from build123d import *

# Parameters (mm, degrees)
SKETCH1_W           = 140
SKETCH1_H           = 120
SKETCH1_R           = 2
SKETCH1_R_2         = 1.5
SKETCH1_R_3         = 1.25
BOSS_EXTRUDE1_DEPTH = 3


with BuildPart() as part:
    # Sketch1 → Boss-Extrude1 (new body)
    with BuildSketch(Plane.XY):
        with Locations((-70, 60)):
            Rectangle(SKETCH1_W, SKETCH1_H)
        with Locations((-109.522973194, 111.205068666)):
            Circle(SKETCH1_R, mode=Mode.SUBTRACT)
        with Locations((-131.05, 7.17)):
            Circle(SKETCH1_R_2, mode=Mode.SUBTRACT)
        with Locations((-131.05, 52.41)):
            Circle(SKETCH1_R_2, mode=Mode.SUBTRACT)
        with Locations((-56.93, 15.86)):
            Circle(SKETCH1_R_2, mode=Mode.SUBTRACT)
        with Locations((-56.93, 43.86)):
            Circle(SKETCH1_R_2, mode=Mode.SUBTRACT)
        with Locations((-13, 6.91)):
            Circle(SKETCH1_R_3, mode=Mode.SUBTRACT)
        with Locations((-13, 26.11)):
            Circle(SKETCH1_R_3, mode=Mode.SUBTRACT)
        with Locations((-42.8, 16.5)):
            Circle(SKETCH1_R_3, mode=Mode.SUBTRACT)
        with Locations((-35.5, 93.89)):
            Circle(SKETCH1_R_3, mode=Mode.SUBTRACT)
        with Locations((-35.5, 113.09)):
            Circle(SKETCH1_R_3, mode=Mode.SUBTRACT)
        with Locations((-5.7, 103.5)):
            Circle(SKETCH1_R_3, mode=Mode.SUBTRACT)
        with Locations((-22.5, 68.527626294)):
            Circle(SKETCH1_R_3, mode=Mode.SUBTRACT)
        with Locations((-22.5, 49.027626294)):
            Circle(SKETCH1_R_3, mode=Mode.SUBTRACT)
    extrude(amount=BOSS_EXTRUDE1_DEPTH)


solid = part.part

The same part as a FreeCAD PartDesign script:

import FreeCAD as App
import Part
import Sketcher

V = App.Vector
Q = App.Units.Quantity


def add_polygon(sketch, points):
    """Adds a closed chain of lines whose ends are joined by coincident constraints."""
    first, n = sketch.GeometryCount, len(points)
    for a, b in zip(points, points[1:] + points[:1]):
        sketch.addGeometry(Part.LineSegment(App.Vector(*a, 0), App.Vector(*b, 0)), False)
    for i in range(n):
        sketch.addConstraint(Sketcher.Constraint("Coincident", first + i, 2, first + (i + 1) % n, 1))

doc = App.newDocument("Part")
body = doc.addObject("PartDesign::Body", "Body")

# Sketch on XY plane
sketch1 = body.newObject("Sketcher::SketchObject", "Sketch")
sketch1.AttachmentSupport = (doc.getObject("XY_Plane"), [""])
sketch1.MapMode = "FlatFace"
add_polygon(sketch1, [(-140, 120), (-140, 0), (0, 0), (0, 120)])  # lines 0-3
sketch1.addGeometry(Part.Circle(V(-131.1, 7.2, 0), V(0, 0, 1), 1.5), False)  # 4
sketch1.addGeometry(Part.Circle(V(-131.1, 52.4, 0), V(0, 0, 1), 1.5), False)  # 5
sketch1.addGeometry(Part.Circle(V(-56.9, 15.9, 0), V(0, 0, 1), 1.5), False)  # 6
sketch1.addGeometry(Part.Circle(V(-42.8, 16.5, 0), V(0, 0, 1), 1.2), False)  # 7
sketch1.addGeometry(Part.Circle(V(-13, 6.9, 0), V(0, 0, 1), 1.2), False)  # 8
sketch1.addGeometry(Part.Circle(V(-13, 26.1, 0), V(0, 0, 1), 1.2), False)  # 9
sketch1.addGeometry(Part.Circle(V(-56.9, 43.9, 0), V(0, 0, 1), 1.5), False)  # 10
sketch1.addGeometry(Part.Circle(V(-22.5, 49, 0), V(0, 0, 1), 1.2), False)  # 11
sketch1.addGeometry(Part.Circle(V(-109.5, 111.2, 0), V(0, 0, 1), 2), False)  # 12
sketch1.addGeometry(Part.Circle(V(-22.5, 68.5, 0), V(0, 0, 1), 1.2), False)  # 13
sketch1.addGeometry(Part.Circle(V(-35.5, 93.9, 0), V(0, 0, 1), 1.2), False)  # 14
sketch1.addGeometry(Part.Circle(V(-35.5, 113.1, 0), V(0, 0, 1), 1.2), False)  # 15
sketch1.addGeometry(Part.Circle(V(-5.7, 103.5, 0), V(0, 0, 1), 1.2), False)  # 16
sketch1.addConstraint([
    Sketcher.Constraint("Vertical", 0),
    Sketcher.Constraint("Horizontal", 1),
    Sketcher.Constraint("Vertical", 2),
    Sketcher.Constraint("Horizontal", 3),
    Sketcher.Constraint("Coincident", 1, 2, -1, 1),
    Sketcher.Constraint("Equal", 4, 5),
    Sketcher.Constraint("Equal", 5, 6),
    Sketcher.Constraint("Equal", 7, 8),
    Sketcher.Constraint("Equal", 8, 9),
    Sketcher.Constraint("Equal", 6, 10),
    Sketcher.Constraint("Equal", 9, 11),
    Sketcher.Constraint("Equal", 11, 13),
    Sketcher.Constraint("Equal", 13, 14),
    Sketcher.Constraint("Equal", 14, 15),
    Sketcher.Constraint("Equal", 15, 16),
    Sketcher.Constraint("Vertical", 4, 3, 5, 3),
    Sketcher.Constraint("Vertical", 8, 3, 9, 3),
    Sketcher.Constraint("Vertical", 6, 3, 10, 3),
    Sketcher.Constraint("Vertical", 11, 3, 13, 3),
    Sketcher.Constraint("Vertical", 14, 3, 15, 3),
    Sketcher.Constraint("Diameter", 4, Q("3 mm")),
    Sketcher.Constraint("Diameter", 12, Q("4 mm")),
    Sketcher.Constraint("Diameter", 7, Q("2.5 mm")),
    Sketcher.Constraint("DistanceX", 1, 1, 1, 2, Q("140 mm")),
    Sketcher.Constraint("DistanceY", 0, 2, 0, 1, Q("120 mm")),
    Sketcher.Constraint("DistanceX", 8, 3, -1, 1, Q("13 mm")),
    Sketcher.Constraint("DistanceY", 6, 3, 10, 3, Q("28 mm")),
    Sketcher.Constraint("DistanceX", 14, 3, 13, 3, Q("13 mm")),
    Sketcher.Constraint("DistanceX", 7, 3, -1, 1, Q("42.8 mm")),
    Sketcher.Constraint("DistanceY", -1, 1, 7, 3, Q("16.5 mm")),
    Sketcher.Constraint("DistanceX", 11, 3, -1, 1, Q("22.5 mm")),
    Sketcher.Constraint("DistanceX", 16, 3, -1, 1, Q("5.7 mm")),
    Sketcher.Constraint("DistanceY", -1, 1, 16, 3, Q("103.5 mm")),
    Sketcher.Constraint("DistanceY", 8, 3, 5, 3, Q("45.5 mm")),
    Sketcher.Constraint("DistanceY", 8, 3, 9, 3, Q("19.2 mm")),
    Sketcher.Constraint("DistanceY", 11, 3, 13, 3, Q("19.5 mm")),
    Sketcher.Constraint("DistanceY", 14, 3, 15, 3, Q("19.2 mm")),
    Sketcher.Constraint("DistanceX", 4, 3, -1, 1, Q("131.05 mm")),
    Sketcher.Constraint("DistanceY", -1, 1, 4, 3, Q("7.17 mm")),
    Sketcher.Constraint("DistanceY", -1, 1, 5, 3, Q("52.41 mm")),
    Sketcher.Constraint("DistanceX", 6, 3, -1, 1, Q("56.93 mm")),
    Sketcher.Constraint("DistanceY", -1, 1, 6, 3, Q("15.86 mm")),
    Sketcher.Constraint("DistanceY", -1, 1, 14, 3, Q("93.89 mm")),
    Sketcher.Constraint("DistanceY", -1, 1, 12, 3, Q("111.205069 mm")),
    Sketcher.Constraint("DistanceY", -1, 1, 11, 3, Q("49.027626 mm")),
    Sketcher.Constraint("DistanceX", 12, 3, -1, 1, Q("109.522973 mm")),
])
pad1 = body.newObject("PartDesign::Pad", "Pad")
pad1.Profile = sketch1
pad1.Length = 3

doc.recompute()
